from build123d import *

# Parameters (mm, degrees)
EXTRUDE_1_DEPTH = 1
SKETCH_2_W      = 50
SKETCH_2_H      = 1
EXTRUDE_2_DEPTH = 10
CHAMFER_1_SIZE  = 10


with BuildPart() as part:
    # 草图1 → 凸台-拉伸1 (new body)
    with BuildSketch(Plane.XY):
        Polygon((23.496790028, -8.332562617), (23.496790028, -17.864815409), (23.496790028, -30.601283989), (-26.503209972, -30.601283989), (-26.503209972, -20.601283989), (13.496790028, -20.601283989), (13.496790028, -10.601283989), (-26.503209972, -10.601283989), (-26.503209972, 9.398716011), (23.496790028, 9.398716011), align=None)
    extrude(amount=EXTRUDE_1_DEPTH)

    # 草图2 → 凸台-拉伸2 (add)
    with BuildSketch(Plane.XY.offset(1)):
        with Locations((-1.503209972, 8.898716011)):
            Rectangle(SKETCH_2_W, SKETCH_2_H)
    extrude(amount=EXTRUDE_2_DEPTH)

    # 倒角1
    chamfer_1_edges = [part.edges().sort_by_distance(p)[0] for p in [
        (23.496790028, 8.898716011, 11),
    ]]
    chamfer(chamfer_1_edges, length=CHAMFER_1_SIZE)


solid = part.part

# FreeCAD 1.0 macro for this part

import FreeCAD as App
import Part
import Sketcher

V = App.Vector
Q = App.Units.Quantity


def edges_at(feature, points):
    """Names of the edges that pass closest to the given points."""
    edges = feature.Shape.Edges
    near = lambda p: min(range(len(edges)), key=lambda i: edges[i].distToShape(Part.Vertex(*p))[0])
    return sorted({f"Edge{near(p) + 1}" for p in points})


def add_polygon(sketch, points):
    """Adds a closed chain of lines whose ends are joined by coincident constraints."""
    first, n = sketch.GeometryCount, len(points)
    for a, b in zip(points, points[1:] + points[:1]):
        sketch.addGeometry(Part.LineSegment(App.Vector(*a, 0), App.Vector(*b, 0)), False)
    for i in range(n):
        sketch.addConstraint(Sketcher.Constraint("Coincident", first + i, 2, first + (i + 1) % n, 1))

doc = App.newDocument("Part")
body = doc.addObject("PartDesign::Body", "Body")

# Sketch on XY plane
sketch1 = doc.addObject("Sketcher::SketchObject", "Sketch")
body.addObject(sketch1)
sketch1.AttachmentSupport = (doc.XY_Plane, [""])
sketch1.MapMode = "FlatFace"
add_polygon(sketch1, [(23.49679, -30.601284), (23.49679, 9.398716), (-26.50321, 9.398716), (-26.50321, -10.601284), (13.49679, -10.601284), (13.49679, -20.601284), (-26.50321, -20.601284), (-26.50321, -30.601284)])  # lines 0-7
sketch1.addConstraint([
    Sketcher.Constraint("Vertical", 0),
    Sketcher.Constraint("Horizontal", 1),
    Sketcher.Constraint("Vertical", 2),
    Sketcher.Constraint("Horizontal", 3),
    Sketcher.Constraint("Vertical", 4),
    Sketcher.Constraint("Horizontal", 5),
    Sketcher.Constraint("Vertical", 6),
    Sketcher.Constraint("Horizontal", 7),
    Sketcher.Constraint("Vertical", 2, 2, 5, 2),
    Sketcher.Constraint("Equal", 5, 0),
    Sketcher.Constraint("Equal", 4, 6),
    Sketcher.Constraint("DistanceX", 1, 2, 1, 1, Q("50 mm")),
    Sketcher.Constraint("DistanceX", 3, 1, 3, 2, Q("40 mm")),
    Sketcher.Constraint("DistanceY", 2, 2, 2, 1, Q("20 mm")),
    Sketcher.Constraint("DistanceX", -1, 1, 0, 2, Q("23.49679 mm")),
    Sketcher.Constraint("DistanceY", -1, 1, 0, 2, Q("9.398716 mm")),
])
pad1 = doc.addObject("PartDesign::Pad", "Pad")
body.addObject(pad1)
pad1.Profile = sketch1
pad1.Length = 1

# Sketch on XY plane
sketch2 = doc.addObject("Sketcher::SketchObject", "Sketch001")
body.addObject(sketch2)
sketch2.AttachmentSupport = (doc.XY_Plane, [""])
sketch2.MapMode = "FlatFace"
sketch2.AttachmentOffset = App.Placement(V(0, 0, 1), App.Rotation())
add_polygon(sketch2, [(-26.50321, 9.398716), (-26.50321, 8.398716), (23.49679, 8.398716), (23.49679, 9.398716)])  # lines 0-3
sketch2.addConstraint([
    Sketcher.Constraint("Vertical", 0),
    Sketcher.Constraint("Horizontal", 1),
    Sketcher.Constraint("Vertical", 2),
    Sketcher.Constraint("Horizontal", 3),
    Sketcher.Constraint("DistanceX", 1, 1, 1, 2, Q("50 mm")),
    Sketcher.Constraint("DistanceY", 0, 2, 0, 1, Q("1 mm")),
    Sketcher.Constraint("DistanceX", 0, 2, -1, 1, Q("26.50321 mm")),
    Sketcher.Constraint("DistanceY", -1, 1, 0, 2, Q("8.398716 mm")),
])
pad2 = doc.addObject("PartDesign::Pad", "Pad001")
body.addObject(pad2)
pad2.Profile = sketch2
pad2.Length = 10
doc.recompute()

chamfer = doc.addObject("PartDesign::Chamfer", "Chamfer")
body.addObject(chamfer)
chamfer.Base = (pad2, edges_at(pad2, [(23.497, 8.899, 11)]))
chamfer.Size = 10

doc.recompute()
